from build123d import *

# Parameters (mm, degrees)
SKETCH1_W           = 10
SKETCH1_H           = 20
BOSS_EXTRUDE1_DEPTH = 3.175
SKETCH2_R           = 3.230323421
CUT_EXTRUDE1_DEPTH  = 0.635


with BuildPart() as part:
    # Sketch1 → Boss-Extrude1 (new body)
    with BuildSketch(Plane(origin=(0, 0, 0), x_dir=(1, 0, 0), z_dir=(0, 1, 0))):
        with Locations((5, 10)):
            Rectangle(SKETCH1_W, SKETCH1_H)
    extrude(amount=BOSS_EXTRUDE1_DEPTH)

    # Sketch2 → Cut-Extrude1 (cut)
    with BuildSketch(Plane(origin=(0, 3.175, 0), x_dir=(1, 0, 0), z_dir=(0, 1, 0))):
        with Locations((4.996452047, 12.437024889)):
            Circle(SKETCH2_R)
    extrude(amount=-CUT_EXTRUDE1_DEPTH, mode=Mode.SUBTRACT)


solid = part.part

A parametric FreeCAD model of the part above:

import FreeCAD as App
import Part
import Sketcher

V = App.Vector

doc = App.newDocument("Part")
params = doc.addObject("Spreadsheet::Sheet", "Params")
for row, (alias, value) in enumerate([
    ("sketch1_width", "10 mm"),
    ("sketch1_height", "20 mm"),
    ("pad1_length", "3.175 mm"),
    ("pocket1_length", "0.635 mm"),
], start=1):
    params.set(f"A{row}", alias)
    params.set(f"B{row}", "=" + value)
    params.setAlias(f"B{row}", alias)

body = doc.addObject("PartDesign::Body", "Body")

sketch1 = body.newObject("Sketcher::SketchObject", "Sketch")
sketch1.AttachmentSupport = (doc.getObject("XZ_Plane"), [""])
sketch1.MapMode = "FlatFace"
sketch1.addGeometry([
    Part.LineSegment(V(0, -20, 0), V(0, 0, 0)),
    Part.LineSegment(V(0, 0, 0), V(10, 0, 0)),
    Part.LineSegment(V(10, 0, 0), V(10, -20, 0)),
    Part.LineSegment(V(10, -20, 0), V(0, -20, 0)),
], False)
sketch1.addConstraint([
    Sketcher.Constraint("Coincident", 0, 2, 1, 1),
    Sketcher.Constraint("Coincident", 1, 2, 2, 1),
    Sketcher.Constraint("Coincident", 2, 2, 3, 1),
    Sketcher.Constraint("Coincident", 3, 2, 0, 1),
    Sketcher.Constraint("Vertical", 0),
    Sketcher.Constraint("Horizontal", 1),
    Sketcher.Constraint("Vertical", 2),
    Sketcher.Constraint("Horizontal", 3),
    Sketcher.Constraint("Coincident", 0, 2, -1, 1),
    Sketcher.Constraint("DistanceX", 1, 1, 1, 2, 10.0),
    Sketcher.Constraint("DistanceY", 0, 1, 0, 2, 20.0),
])
sketch1.setExpression("Constraints[9]", "Params.sketch1_width")
sketch1.setExpression("Constraints[10]", "Params.sketch1_height")
pad1 = body.newObject("PartDesign::Pad", "Pad")
pad1.Profile = sketch1
pad1.setExpression("Length", "Params.pad1_length")
pad1.Reversed = True

sketch2 = body.newObject("Sketcher::SketchObject", "Sketch001")
sketch2.AttachmentSupport = (doc.getObject("XZ_Plane"), [""])
sketch2.MapMode = "FlatFace"
sketch2.AttachmentOffset = App.Placement(V(0, 0, -3.175), App.Rotation())
sketch2.addGeometry(Part.Circle(V(5, -12.4, 0), V(0, 0, 1), 3.2), False)
sketch2.addConstraint([
    Sketcher.Constraint("Diameter", 0, 6.460647),
    Sketcher.Constraint("DistanceX", -1, 1, 0, 3, 4.996452),
    Sketcher.Constraint("DistanceY", 0, 3, -1, 1, 12.437025),
])
pocket1 = body.newObject("PartDesign::Pocket", "Pocket")
pocket1.Profile = sketch2
pocket1.setExpression("Length", "Params.pocket1_length")
pocket1.Reversed = True

doc.recompute()
